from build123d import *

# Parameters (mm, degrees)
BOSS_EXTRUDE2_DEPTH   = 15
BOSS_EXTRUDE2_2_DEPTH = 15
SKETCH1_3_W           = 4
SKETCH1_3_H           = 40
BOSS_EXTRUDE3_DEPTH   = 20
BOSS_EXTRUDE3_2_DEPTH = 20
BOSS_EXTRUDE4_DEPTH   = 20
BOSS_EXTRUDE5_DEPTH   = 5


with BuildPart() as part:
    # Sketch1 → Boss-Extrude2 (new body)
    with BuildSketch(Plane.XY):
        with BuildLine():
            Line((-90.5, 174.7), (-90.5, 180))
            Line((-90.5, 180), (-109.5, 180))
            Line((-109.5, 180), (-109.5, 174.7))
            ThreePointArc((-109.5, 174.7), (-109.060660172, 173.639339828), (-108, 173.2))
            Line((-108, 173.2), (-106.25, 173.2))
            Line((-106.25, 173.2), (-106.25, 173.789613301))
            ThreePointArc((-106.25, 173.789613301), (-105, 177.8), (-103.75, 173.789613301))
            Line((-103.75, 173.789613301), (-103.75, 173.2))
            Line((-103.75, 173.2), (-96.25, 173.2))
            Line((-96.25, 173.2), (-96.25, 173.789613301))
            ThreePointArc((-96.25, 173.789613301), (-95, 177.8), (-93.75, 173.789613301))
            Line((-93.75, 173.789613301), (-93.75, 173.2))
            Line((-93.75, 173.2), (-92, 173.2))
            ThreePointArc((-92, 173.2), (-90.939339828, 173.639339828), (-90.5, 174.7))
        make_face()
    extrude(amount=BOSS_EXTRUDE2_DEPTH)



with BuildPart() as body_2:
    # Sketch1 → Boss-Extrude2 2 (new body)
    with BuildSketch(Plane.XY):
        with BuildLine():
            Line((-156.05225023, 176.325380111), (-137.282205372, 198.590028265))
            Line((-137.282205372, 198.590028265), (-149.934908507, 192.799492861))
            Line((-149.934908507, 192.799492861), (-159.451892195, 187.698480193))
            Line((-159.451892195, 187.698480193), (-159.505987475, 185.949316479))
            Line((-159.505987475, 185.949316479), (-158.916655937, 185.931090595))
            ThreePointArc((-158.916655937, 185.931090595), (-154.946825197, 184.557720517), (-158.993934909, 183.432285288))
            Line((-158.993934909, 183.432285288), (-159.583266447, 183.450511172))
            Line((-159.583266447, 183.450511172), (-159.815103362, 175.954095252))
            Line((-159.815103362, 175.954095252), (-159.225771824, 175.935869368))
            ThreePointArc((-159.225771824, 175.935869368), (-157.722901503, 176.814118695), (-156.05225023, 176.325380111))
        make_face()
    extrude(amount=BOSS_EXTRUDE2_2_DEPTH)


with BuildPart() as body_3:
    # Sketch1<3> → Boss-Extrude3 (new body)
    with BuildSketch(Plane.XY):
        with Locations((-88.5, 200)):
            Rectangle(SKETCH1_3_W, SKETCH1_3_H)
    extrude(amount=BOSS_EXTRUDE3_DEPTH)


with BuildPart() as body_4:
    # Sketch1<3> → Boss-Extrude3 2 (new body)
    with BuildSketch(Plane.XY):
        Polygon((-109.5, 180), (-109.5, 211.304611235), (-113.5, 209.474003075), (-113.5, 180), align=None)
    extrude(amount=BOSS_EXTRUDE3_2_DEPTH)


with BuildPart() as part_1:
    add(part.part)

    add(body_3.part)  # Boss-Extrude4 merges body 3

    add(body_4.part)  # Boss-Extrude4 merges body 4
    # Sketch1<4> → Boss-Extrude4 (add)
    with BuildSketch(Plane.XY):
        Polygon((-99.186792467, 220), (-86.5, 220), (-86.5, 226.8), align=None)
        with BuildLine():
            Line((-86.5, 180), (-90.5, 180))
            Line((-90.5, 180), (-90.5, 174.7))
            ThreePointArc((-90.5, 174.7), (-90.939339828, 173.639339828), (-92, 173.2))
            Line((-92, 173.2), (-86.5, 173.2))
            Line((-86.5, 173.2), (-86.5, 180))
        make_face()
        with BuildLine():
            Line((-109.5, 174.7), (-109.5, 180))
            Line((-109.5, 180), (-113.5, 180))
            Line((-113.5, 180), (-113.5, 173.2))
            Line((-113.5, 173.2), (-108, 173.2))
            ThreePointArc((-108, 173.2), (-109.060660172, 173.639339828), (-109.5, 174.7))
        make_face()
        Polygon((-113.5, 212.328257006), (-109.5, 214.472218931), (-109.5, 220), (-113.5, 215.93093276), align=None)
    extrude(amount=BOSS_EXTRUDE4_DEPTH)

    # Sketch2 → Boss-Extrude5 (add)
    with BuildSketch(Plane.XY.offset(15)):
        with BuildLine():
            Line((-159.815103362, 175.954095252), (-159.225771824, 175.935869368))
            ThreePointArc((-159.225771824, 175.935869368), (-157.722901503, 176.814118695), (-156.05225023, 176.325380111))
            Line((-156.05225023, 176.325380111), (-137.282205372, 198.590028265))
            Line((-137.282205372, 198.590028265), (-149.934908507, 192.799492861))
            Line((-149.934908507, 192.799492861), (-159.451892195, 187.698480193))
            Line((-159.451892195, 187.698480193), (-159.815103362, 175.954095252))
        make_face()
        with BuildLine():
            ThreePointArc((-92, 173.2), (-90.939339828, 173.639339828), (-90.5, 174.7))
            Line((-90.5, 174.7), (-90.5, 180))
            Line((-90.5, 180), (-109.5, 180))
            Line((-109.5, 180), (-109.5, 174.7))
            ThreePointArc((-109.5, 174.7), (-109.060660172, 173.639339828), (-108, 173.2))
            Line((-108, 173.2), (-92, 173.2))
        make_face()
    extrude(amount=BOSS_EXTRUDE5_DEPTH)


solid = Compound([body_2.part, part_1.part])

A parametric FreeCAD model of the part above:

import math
import FreeCAD as App
import Part
import Sketcher

V = App.Vector

doc = App.newDocument("Part")
body = doc.addObject("PartDesign::Body", "Body")

# Sketch on XY plane
sketch1 = doc.addObject("Sketcher::SketchObject", "Sketch")
body.addObject(sketch1)
sketch1.AttachmentSupport = (doc.XY_Plane, [""])
sketch1.MapMode = "FlatFace"
sketch1.addGeometry(Part.LineSegment(V(-90.5, 174.7, 0), V(-90.5, 180, 0)), False)
sketch1.addGeometry(Part.LineSegment(V(-90.5, 180, 0), V(-109.5, 180, 0)), False)
sketch1.addGeometry(Part.LineSegment(V(-109.5, 180, 0), V(-109.5, 174.7, 0)), False)
sketch1.addGeometry(Part.ArcOfCircle(Part.Circle(V(-108, 174.7, 0), V(0, 0, 1), 1.5), math.radians(180), math.radians(270)), False)
sketch1.addGeometry(Part.LineSegment(V(-108, 173.2, 0), V(-106.2, 173.2, 0)), False)
sketch1.addGeometry(Part.LineSegment(V(-106.2, 173.2, 0), V(-106.2, 173.8, 0)), False)
sketch1.addGeometry(Part.ArcOfCircle(Part.Circle(V(-105, 175.6, 0), V(0, 0, 1), 2.2), math.radians(-55), math.radians(235)), False)
sketch1.addGeometry(Part.LineSegment(V(-103.8, 173.8, 0), V(-103.8, 173.2, 0)), False)
sketch1.addGeometry(Part.LineSegment(V(-103.8, 173.2, 0), V(-96.2, 173.2, 0)), False)
sketch1.addGeometry(Part.LineSegment(V(-96.2, 173.2, 0), V(-96.2, 173.8, 0)), False)
sketch1.addGeometry(Part.ArcOfCircle(Part.Circle(V(-95, 175.6, 0), V(0, 0, 1), 2.2), math.radians(-55), math.radians(235)), False)
sketch1.addGeometry(Part.LineSegment(V(-93.8, 173.8, 0), V(-93.8, 173.2, 0)), False)
sketch1.addGeometry(Part.LineSegment(V(-93.8, 173.2, 0), V(-92, 173.2, 0)), False)
sketch1.addGeometry(Part.ArcOfCircle(Part.Circle(V(-92, 174.7, 0), V(0, 0, 1), 1.5), math.radians(-90), math.radians(0)), False)
sketch1.addConstraint(Sketcher.Constraint("Coincident", 0, 2, 1, 1))
sketch1.addConstraint(Sketcher.Constraint("Coincident", 1, 2, 2, 1))
sketch1.addConstraint(Sketcher.Constraint("Tangent", 2, 2, 3, 1))
sketch1.addConstraint(Sketcher.Constraint("Tangent", 3, 2, 4, 1))
sketch1.addConstraint(Sketcher.Constraint("Coincident", 4, 2, 5, 1))
sketch1.addConstraint(Sketcher.Constraint("Coincident", 5, 2, 6, 2))
sketch1.addConstraint(Sketcher.Constraint("Coincident", 6, 1, 7, 1))
sketch1.addConstraint(Sketcher.Constraint("Coincident", 7, 2, 8, 1))
sketch1.addConstraint(Sketcher.Constraint("Coincident", 8, 2, 9, 1))
sketch1.addConstraint(Sketcher.Constraint("Coincident", 9, 2, 10, 2))
sketch1.addConstraint(Sketcher.Constraint("Coincident", 10, 1, 11, 1))
sketch1.addConstraint(Sketcher.Constraint("Coincident", 11, 2, 12, 1))
sketch1.addConstraint(Sketcher.Constraint("Tangent", 12, 2, 13, 1))
sketch1.addConstraint(Sketcher.Constraint("Tangent", 13, 2, 0, 1))
sketch1.addConstraint(Sketcher.Constraint("Vertical", 0))
sketch1.addConstraint(Sketcher.Constraint("Horizontal", 1))
sketch1.addConstraint(Sketcher.Constraint("Vertical", 2))
sketch1.addConstraint(Sketcher.Constraint("Horizontal", 4))
sketch1.addConstraint(Sketcher.Constraint("Vertical", 5))
sketch1.addConstraint(Sketcher.Constraint("Vertical", 7))
sketch1.addConstraint(Sketcher.Constraint("Horizontal", 8))
sketch1.addConstraint(Sketcher.Constraint("Vertical", 9))
sketch1.addConstraint(Sketcher.Constraint("Vertical", 11))
sketch1.addConstraint(Sketcher.Constraint("Horizontal", 12))
sketch1.addConstraint(Sketcher.Constraint("Equal", 6, 10))
sketch1.addConstraint(Sketcher.Constraint("Equal", 3, 13))
sketch1.addConstraint(Sketcher.Constraint("Horizontal", 6, 3, 10, 3))
sketch1.addConstraint(Sketcher.Constraint("Horizontal", 3, 3, 13, 3))
sketch1.addConstraint(Sketcher.Constraint("Horizontal", 5, 2, 6, 1))
sketch1.addConstraint(Sketcher.Constraint("Horizontal", 4, 2, 7, 2))
sketch1.addConstraint(Sketcher.Constraint("Horizontal", 6, 1, 9, 2))
sketch1.addConstraint(Sketcher.Constraint("Horizontal", 9, 2, 10, 1))
sketch1.addConstraint(Sketcher.Constraint("Equal", 4, 12))
sketch1.addConstraint(Sketcher.Constraint("Radius", 3, 1.5))
sketch1.addConstraint(Sketcher.Constraint("Radius", 6, 2.2))
sketch1.addConstraint(Sketcher.Constraint("DistanceX", 1, 2, 1, 1, 19.0))
sketch1.addConstraint(Sketcher.Constraint("DistanceX", 8, 1, 8, 2, 7.5))
sketch1.addConstraint(Sketcher.Constraint("DistanceY", 0, 1, 0, 2, 5.3))
sketch1.addConstraint(Sketcher.Constraint("DistanceX", 3, 3, -1, 1, 108.0))
sketch1.addConstraint(Sketcher.Constraint("DistanceX", 6, 3, -1, 1, 105.0))
sketch1.addConstraint(Sketcher.Constraint("DistanceY", -1, 1, 0, 2, 180.0))
sketch1.addConstraint(Sketcher.Constraint("DistanceY", -1, 1, 6, 3, 175.6))
pad1 = doc.addObject("PartDesign::Pad", "Pad")
body.addObject(pad1)
pad1.Profile = sketch1
pad1.Length = 15
body2 = doc.addObject("PartDesign::Body", "Body001")

# Sketch on XY plane
sketch2 = doc.addObject("Sketcher::SketchObject", "Sketch001")
body2.addObject(sketch2)
sketch2.AttachmentSupport = (doc.getObject("XY_Plane001"), [""])
sketch2.MapMode = "FlatFace"
sketch2.addGeometry(Part.LineSegment(V(-156.05225, 176.32538, 0), V(-137.282205, 198.590028, 0)), False)
sketch2.addGeometry(Part.LineSegment(V(-137.282205, 198.590028, 0), V(-149.934909, 192.799493, 0)), False)
sketch2.addGeometry(Part.LineSegment(V(-149.934909, 192.799493, 0), V(-159.451892, 187.69848, 0)), False)
sketch2.addGeometry(Part.LineSegment(V(-159.451892, 187.69848, 0), V(-159.505987, 185.949316, 0)), False)
sketch2.addGeometry(Part.LineSegment(V(-159.505987, 185.949316, 0), V(-158.916656, 185.931091, 0)), False)
sketch2.addGeometry(Part.ArcOfCircle(Part.Circle(V(-157.145774, 184.625726, 0), V(0, 0, 1), 2.2), math.radians(-147.14785), math.radians(143.605079)), False)
sketch2.addGeometry(Part.LineSegment(V(-158.993935, 183.432285, 0), V(-159.583266, 183.450511, 0)), False)
sketch2.addGeometry(Part.LineSegment(V(-159.583266, 183.450511, 0), V(-159.815103, 175.954095, 0)), False)
sketch2.addGeometry(Part.LineSegment(V(-159.815103, 175.954095, 0), V(-159.225772, 175.935869, 0)), False)
sketch2.addGeometry(Part.ArcOfCircle(Part.Circle(V(-157.45489, 174.630505, 0), V(0, 0, 1), 2.2), math.radians(50.389631), math.radians(143.605079)), False)
sketch2.addConstraint(Sketcher.Constraint("Coincident", 0, 2, 1, 1))
sketch2.addConstraint(Sketcher.Constraint("Coincident", 1, 2, 2, 1))
sketch2.addConstraint(Sketcher.Constraint("Coincident", 2, 2, 3, 1))
sketch2.addConstraint(Sketcher.Constraint("Coincident", 3, 2, 4, 1))
sketch2.addConstraint(Sketcher.Constraint("Coincident", 4, 2, 5, 2))
sketch2.addConstraint(Sketcher.Constraint("Coincident", 5, 1, 6, 1))
sketch2.addConstraint(Sketcher.Constraint("Coincident", 6, 2, 7, 1))
sketch2.addConstraint(Sketcher.Constraint("Coincident", 7, 2, 8, 1))
sketch2.addConstraint(Sketcher.Constraint("Coincident", 8, 2, 9, 2))
sketch2.addConstraint(Sketcher.Constraint("Coincident", 9, 1, 0, 1))
sketch2.addConstraint(Sketcher.Constraint("Radius", 5, 2.2))
sketch2.addConstraint(Sketcher.Constraint("Radius", 9, 2.2))
sketch2.addConstraint(Sketcher.Constraint("Distance", 7, 7.5))
sketch2.addConstraint(Sketcher.Constraint("Distance", 3, 1.75))
sketch2.addConstraint(Sketcher.Constraint("Distance", 0, 29.12094))
sketch2.addConstraint(Sketcher.Constraint("Distance", 2, 10.797838))
sketch2.addConstraint(Sketcher.Constraint("DistanceX", 9, 3, -1, 1, 157.45489))
sketch2.addConstraint(Sketcher.Constraint("DistanceY", -1, 1, 0, 2, 198.590028))
sketch2.addConstraint(Sketcher.Constraint("DistanceX", 1, 2, -1, 1, 149.934909))
sketch2.addConstraint(Sketcher.Constraint("DistanceY", -1, 1, 2, 2, 187.69848))
sketch2.addConstraint(Sketcher.Constraint("DistanceY", -1, 1, 4, 2, 185.931091))
sketch2.addConstraint(Sketcher.Constraint("DistanceY", -1, 1, 6, 2, 183.450511))
sketch2.addConstraint(Sketcher.Constraint("DistanceX", 8, 2, -1, 1, 159.225772))
sketch2.addConstraint(Sketcher.Constraint("DistanceY", -1, 1, 8, 2, 175.935869))
sketch2.addConstraint(Sketcher.Constraint("DistanceX", 9, 1, -1, 1, 156.05225))
sketch2.addConstraint(Sketcher.Constraint("DistanceY", 9, 3, 5, 3, 9.995221))
sketch2.addConstraint(Sketcher.Constraint("DistanceX", 5, 3, 0, 2, 19.863568))
sketch2.addConstraint(Sketcher.Constraint("DistanceY", 9, 3, 1, 2, 18.168988))
sketch2.addConstraint(Sketcher.Constraint("DistanceY", 5, 3, 3, 2, 1.32359))
sketch2.addConstraint(Sketcher.Constraint("DistanceX", 5, 1, 5, 3, 1.848161))
sketch2.addConstraint(Sketcher.Constraint("DistanceX", 6, 2, 5, 1, 0.589332))
sketch2.addConstraint(Sketcher.Constraint("DistanceY", 9, 3, 7, 2, 1.32359))
pad2 = doc.addObject("PartDesign::Pad", "Pad001")
body2.addObject(pad2)
pad2.Profile = sketch2
pad2.Length = 15
body3 = doc.addObject("PartDesign::Body", "Body002")

# Sketch on XY plane
sketch3 = doc.addObject("Sketcher::SketchObject", "Sketch002")
body3.addObject(sketch3)
sketch3.AttachmentSupport = (doc.getObject("XY_Plane002"), [""])
sketch3.MapMode = "FlatFace"
sketch3.addGeometry(Part.LineSegment(V(-90.5, 220, 0), V(-90.5, 180, 0)), False)
sketch3.addGeometry(Part.LineSegment(V(-90.5, 180, 0), V(-86.5, 180, 0)), False)
sketch3.addGeometry(Part.LineSegment(V(-86.5, 180, 0), V(-86.5, 220, 0)), False)
sketch3.addGeometry(Part.LineSegment(V(-86.5, 220, 0), V(-90.5, 220, 0)), False)
sketch3.addConstraint(Sketcher.Constraint("Coincident", 0, 2, 1, 1))
sketch3.addConstraint(Sketcher.Constraint("Coincident", 1, 2, 2, 1))
sketch3.addConstraint(Sketcher.Constraint("Coincident", 2, 2, 3, 1))
sketch3.addConstraint(Sketcher.Constraint("Coincident", 3, 2, 0, 1))
sketch3.addConstraint(Sketcher.Constraint("Vertical", 0))
sketch3.addConstraint(Sketcher.Constraint("Horizontal", 1))
sketch3.addConstraint(Sketcher.Constraint("Vertical", 2))
sketch3.addConstraint(Sketcher.Constraint("Horizontal", 3))
sketch3.addConstraint(Sketcher.Constraint("DistanceX", 1, 1, 1, 2, 4.0))
sketch3.addConstraint(Sketcher.Constraint("DistanceY", 0, 2, 0, 1, 40.0))
sketch3.addConstraint(Sketcher.Constraint("DistanceY", -1, 1, 0, 2, 180.0))
sketch3.addConstraint(Sketcher.Constraint("DistanceX", 0, 2, -1, 1, 90.5))
pad3 = doc.addObject("PartDesign::Pad", "Pad002")
body3.addObject(pad3)
pad3.Profile = sketch3
pad3.Length = 20
body4 = doc.addObject("PartDesign::Body", "Body003")

# Sketch on XY plane
sketch4 = doc.addObject("Sketcher::SketchObject", "Sketch003")
body4.addObject(sketch4)
sketch4.AttachmentSupport = (doc.getObject("XY_Plane003"), [""])
sketch4.MapMode = "FlatFace"
sketch4.addGeometry(Part.LineSegment(V(-109.5, 180, 0), V(-109.5, 211.3, 0)), False)
sketch4.addGeometry(Part.LineSegment(V(-109.5, 211.3, 0), V(-113.5, 209.5, 0)), False)
sketch4.addGeometry(Part.LineSegment(V(-113.5, 209.5, 0), V(-113.5, 180, 0)), False)
sketch4.addGeometry(Part.LineSegment(V(-113.5, 180, 0), V(-109.5, 180, 0)), False)
sketch4.addConstraint(Sketcher.Constraint("Coincident", 0, 2, 1, 1))
sketch4.addConstraint(Sketcher.Constraint("Coincident", 1, 2, 2, 1))
sketch4.addConstraint(Sketcher.Constraint("Coincident", 2, 2, 3, 1))
sketch4.addConstraint(Sketcher.Constraint("Coincident", 3, 2, 0, 1))
sketch4.addConstraint(Sketcher.Constraint("Vertical", 0))
sketch4.addConstraint(Sketcher.Constraint("Vertical", 2))
sketch4.addConstraint(Sketcher.Constraint("Horizontal", 3))
sketch4.addConstraint(Sketcher.Constraint("DistanceX", 3, 1, 3, 2, 4.0))
sketch4.addConstraint(Sketcher.Constraint("DistanceY", -1, 1, 2, 2, 180.0))
sketch4.addConstraint(Sketcher.Constraint("DistanceX", 0, 2, -1, 1, 109.5))
sketch4.addConstraint(Sketcher.Constraint("DistanceY", 0, 1, 0, 2, 31.304611))
sketch4.addConstraint(Sketcher.Constraint("Distance", 1, 4.398992))
pad4 = doc.addObject("PartDesign::Pad", "Pad003")
body4.addObject(pad4)
pad4.Profile = sketch4
pad4.Length = 20
body.AllowCompound = True
doc.recompute()

boolean = doc.addObject("PartDesign::Boolean", "Boolean")
body.addObject(boolean)
boolean.Type = "Fuse"
boolean.addObjects([body3])
doc.recompute()

boolean2 = doc.addObject("PartDesign::Boolean", "Boolean001")
body.addObject(boolean2)
boolean2.Type = "Fuse"
boolean2.addObjects([body4])

# Sketch on XY plane
sketch5 = doc.addObject("Sketcher::SketchObject", "Sketch004")
body.addObject(sketch5)
sketch5.AttachmentSupport = (doc.XY_Plane, [""])
sketch5.MapMode = "FlatFace"
sketch5.addGeometry(Part.LineSegment(V(-99.2, 220, 0), V(-86.5, 220, 0)), False)
sketch5.addGeometry(Part.LineSegment(V(-86.5, 220, 0), V(-86.5, 226.8, 0)), False)
sketch5.addGeometry(Part.LineSegment(V(-86.5, 226.8, 0), V(-99.2, 220, 0)), False)
sketch5.addGeometry(Part.LineSegment(V(-86.5, 180, 0), V(-90.5, 180, 0)), False)
sketch5.addGeometry(Part.LineSegment(V(-90.5, 180, 0), V(-90.5, 174.7, 0)), False)
sketch5.addGeometry(Part.ArcOfCircle(Part.Circle(V(-92, 174.7, 0), V(0, 0, 1), 1.5), math.radians(-90), math.radians(0)), False)
sketch5.addGeometry(Part.LineSegment(V(-92, 173.2, 0), V(-86.5, 173.2, 0)), False)
sketch5.addGeometry(Part.LineSegment(V(-86.5, 173.2, 0), V(-86.5, 180, 0)), False)
sketch5.addGeometry(Part.LineSegment(V(-109.5, 174.7, 0), V(-109.5, 180, 0)), False)
sketch5.addGeometry(Part.LineSegment(V(-109.5, 180, 0), V(-113.5, 180, 0)), False)
sketch5.addGeometry(Part.LineSegment(V(-113.5, 180, 0), V(-113.5, 173.2, 0)), False)
sketch5.addGeometry(Part.LineSegment(V(-113.5, 173.2, 0), V(-108, 173.2, 0)), False)
sketch5.addGeometry(Part.ArcOfCircle(Part.Circle(V(-108, 174.7, 0), V(0, 0, 1), 1.5), math.radians(180), math.radians(270)), False)
sketch5.addGeometry(Part.LineSegment(V(-113.5, 212.3, 0), V(-109.5, 214.5, 0)), False)
sketch5.addGeometry(Part.LineSegment(V(-109.5, 214.5, 0), V(-109.5, 220, 0)), False)
sketch5.addGeometry(Part.LineSegment(V(-109.5, 220, 0), V(-113.5, 215.9, 0)), False)
sketch5.addGeometry(Part.LineSegment(V(-113.5, 215.9, 0), V(-113.5, 212.3, 0)), False)
sketch5.addConstraint(Sketcher.Constraint("Coincident", 0, 2, 1, 1))
sketch5.addConstraint(Sketcher.Constraint("Coincident", 1, 2, 2, 1))
sketch5.addConstraint(Sketcher.Constraint("Coincident", 2, 2, 0, 1))
sketch5.addConstraint(Sketcher.Constraint("Coincident", 3, 2, 4, 1))
sketch5.addConstraint(Sketcher.Constraint("Tangent", 4, 2, 5, 2))
sketch5.addConstraint(Sketcher.Constraint("Tangent", 5, 1, 6, 1))
sketch5.addConstraint(Sketcher.Constraint("Coincident", 6, 2, 7, 1))
sketch5.addConstraint(Sketcher.Constraint("Coincident", 7, 2, 3, 1))
sketch5.addConstraint(Sketcher.Constraint("Coincident", 8, 2, 9, 1))
sketch5.addConstraint(Sketcher.Constraint("Coincident", 9, 2, 10, 1))
sketch5.addConstraint(Sketcher.Constraint("Coincident", 10, 2, 11, 1))
sketch5.addConstraint(Sketcher.Constraint("Tangent", 11, 2, 12, 2))
sketch5.addConstraint(Sketcher.Constraint("Tangent", 12, 1, 8, 1))
sketch5.addConstraint(Sketcher.Constraint("Coincident", 13, 2, 14, 1))
sketch5.addConstraint(Sketcher.Constraint("Coincident", 14, 2, 15, 1))
sketch5.addConstraint(Sketcher.Constraint("Coincident", 15, 2, 16, 1))
sketch5.addConstraint(Sketcher.Constraint("Coincident", 16, 2, 13, 1))
sketch5.addConstraint(Sketcher.Constraint("Horizontal", 0))
sketch5.addConstraint(Sketcher.Constraint("Vertical", 1))
sketch5.addConstraint(Sketcher.Constraint("Horizontal", 3))
sketch5.addConstraint(Sketcher.Constraint("Vertical", 4))
sketch5.addConstraint(Sketcher.Constraint("Horizontal", 6))
sketch5.addConstraint(Sketcher.Constraint("Vertical", 7))
sketch5.addConstraint(Sketcher.Constraint("Vertical", 8))
sketch5.addConstraint(Sketcher.Constraint("Horizontal", 9))
sketch5.addConstraint(Sketcher.Constraint("Vertical", 10))
sketch5.addConstraint(Sketcher.Constraint("Horizontal", 11))
sketch5.addConstraint(Sketcher.Constraint("Vertical", 14))
sketch5.addConstraint(Sketcher.Constraint("Vertical", 16))
sketch5.addConstraint(Sketcher.Constraint("Equal", 5, 12))
sketch5.addConstraint(Sketcher.Constraint("Parallel", 2, 13))
sketch5.addConstraint(Sketcher.Constraint("Horizontal", 5, 3, 12, 3))
sketch5.addConstraint(Sketcher.Constraint("Horizontal", 7, 2, 8, 2))
sketch5.addConstraint(Sketcher.Constraint("Horizontal", 2, 2, 14, 2))
sketch5.addConstraint(Sketcher.Constraint("Vertical", 1, 2, 6, 2))
sketch5.addConstraint(Sketcher.Constraint("Vertical", 12, 1, 13, 2))
sketch5.addConstraint(Sketcher.Constraint("Vertical", 10, 2, 15, 2))
sketch5.addConstraint(Sketcher.Constraint("Equal", 3, 9))
sketch5.addConstraint(Sketcher.Constraint("Equal", 1, 7))
sketch5.addConstraint(Sketcher.Constraint("Radius", 5, 1.5))
sketch5.addConstraint(Sketcher.Constraint("DistanceX", 3, 2, 3, 1, 4.0))
sketch5.addConstraint(Sketcher.Constraint("DistanceY", 1, 1, 1, 2, 6.8))
sketch5.addConstraint(Sketcher.Constraint("DistanceX", 5, 3, -1, 1, 92.0))
sketch5.addConstraint(Sketcher.Constraint("DistanceX", 12, 3, -1, 1, 108.0))
sketch5.addConstraint(Sketcher.Constraint("DistanceY", -1, 1, 0, 2, 220.0))
sketch5.addConstraint(Sketcher.Constraint("DistanceY", -1, 1, 3, 2, 180.0))
sketch5.addConstraint(Sketcher.Constraint("Distance", 15, 5.705901))
sketch5.addConstraint(Sketcher.Constraint("DistanceY", 14, 1, 14, 2, 5.527781))
sketch5.addConstraint(Sketcher.Constraint("Distance", 2, 14.394259))
pad5 = doc.addObject("PartDesign::Pad", "Pad004")
body.addObject(pad5)
pad5.Profile = sketch5
pad5.Length = 20

# Sketch on XY plane
sketch6 = doc.addObject("Sketcher::SketchObject", "Sketch005")
body.addObject(sketch6)
sketch6.AttachmentSupport = (doc.XY_Plane, [""])
sketch6.MapMode = "FlatFace"
sketch6.AttachmentOffset = App.Placement(V(0, 0, 15), App.Rotation())
sketch6.addGeometry(Part.LineSegment(V(-159.8, 176, 0), V(-159.2, 175.9, 0)), False)
sketch6.addGeometry(Part.ArcOfCircle(Part.Circle(V(-157.5, 174.6, 0), V(0, 0, 1), 2.2), math.radians(50), math.radians(144)), False)
sketch6.addGeometry(Part.LineSegment(V(-156.1, 176.3, 0), V(-137.3, 198.6, 0)), False)
sketch6.addGeometry(Part.LineSegment(V(-137.3, 198.6, 0), V(-149.9, 192.8, 0)), False)
sketch6.addGeometry(Part.LineSegment(V(-149.9, 192.8, 0), V(-159.5, 187.7, 0)), False)
sketch6.addGeometry(Part.LineSegment(V(-159.5, 187.7, 0), V(-159.8, 176, 0)), False)
sketch6.addGeometry(Part.ArcOfCircle(Part.Circle(V(-92, 174.7, 0), V(0, 0, 1), 1.5), math.radians(-90), math.radians(0)), False)
sketch6.addGeometry(Part.LineSegment(V(-90.5, 174.7, 0), V(-90.5, 180, 0)), False)
sketch6.addGeometry(Part.LineSegment(V(-90.5, 180, 0), V(-109.5, 180, 0)), False)
sketch6.addGeometry(Part.LineSegment(V(-109.5, 180, 0), V(-109.5, 174.7, 0)), False)
sketch6.addGeometry(Part.ArcOfCircle(Part.Circle(V(-108, 174.7, 0), V(0, 0, 1), 1.5), math.radians(180), math.radians(270)), False)
sketch6.addGeometry(Part.LineSegment(V(-108, 173.2, 0), V(-92, 173.2, 0)), False)
sketch6.addConstraint(Sketcher.Constraint("Coincident", 0, 2, 1, 2))
sketch6.addConstraint(Sketcher.Constraint("Coincident", 1, 1, 2, 1))
sketch6.addConstraint(Sketcher.Constraint("Coincident", 2, 2, 3, 1))
sketch6.addConstraint(Sketcher.Constraint("Coincident", 3, 2, 4, 1))
sketch6.addConstraint(Sketcher.Constraint("Coincident", 4, 2, 5, 1))
sketch6.addConstraint(Sketcher.Constraint("Coincident", 5, 2, 0, 1))
sketch6.addConstraint(Sketcher.Constraint("Tangent", 6, 2, 7, 1))
sketch6.addConstraint(Sketcher.Constraint("Coincident", 7, 2, 8, 1))
sketch6.addConstraint(Sketcher.Constraint("Coincident", 8, 2, 9, 1))
sketch6.addConstraint(Sketcher.Constraint("Tangent", 9, 2, 10, 1))
sketch6.addConstraint(Sketcher.Constraint("Tangent", 10, 2, 11, 1))
sketch6.addConstraint(Sketcher.Constraint("Tangent", 11, 2, 6, 1))
sketch6.addConstraint(Sketcher.Constraint("Vertical", 7))
sketch6.addConstraint(Sketcher.Constraint("Horizontal", 8))
sketch6.addConstraint(Sketcher.Constraint("Vertical", 9))
sketch6.addConstraint(Sketcher.Constraint("Horizontal", 11))
sketch6.addConstraint(Sketcher.Constraint("Equal", 6, 10))
sketch6.addConstraint(Sketcher.Constraint("Perpendicular", 0, 5))
sketch6.addConstraint(Sketcher.Constraint("Radius", 1, 2.2))
sketch6.addConstraint(Sketcher.Constraint("Radius", 6, 1.5))
sketch6.addConstraint(Sketcher.Constraint("DistanceX", 8, 2, 8, 1, 19.0))
sketch6.addConstraint(Sketcher.Constraint("DistanceY", 7, 1, 7, 2, 5.3))
sketch6.addConstraint(Sketcher.Constraint("DistanceX", 6, 3, -1, 1, 92.0))
sketch6.addConstraint(Sketcher.Constraint("DistanceY", -1, 1, 7, 2, 180.0))
sketch6.addConstraint(Sketcher.Constraint("Distance", 5, 11.75))
sketch6.addConstraint(Sketcher.Constraint("DistanceY", 1, 1, 4, 2, 11.3731))
sketch6.addConstraint(Sketcher.Constraint("Distance", 2, 29.12094))
sketch6.addConstraint(Sketcher.Constraint("Distance", 4, 10.797838))
sketch6.addConstraint(Sketcher.Constraint("DistanceX", 1, 3, -1, 1, 157.45489))
sketch6.addConstraint(Sketcher.Constraint("DistanceX", 0, 2, -1, 1, 159.225772))
sketch6.addConstraint(Sketcher.Constraint("DistanceY", -1, 1, 0, 2, 175.935869))
sketch6.addConstraint(Sketcher.Constraint("DistanceX", 1, 1, -1, 1, 156.05225))
sketch6.addConstraint(Sketcher.Constraint("DistanceY", -1, 1, 2, 2, 198.590028))
sketch6.addConstraint(Sketcher.Constraint("DistanceX", 3, 2, -1, 1, 149.934909))
sketch6.addConstraint(Sketcher.Constraint("DistanceY", 1, 3, 3, 2, 18.168988))
pad6 = doc.addObject("PartDesign::Pad", "Pad005")
body.addObject(pad6)
pad6.Profile = sketch6
pad6.Length = 5

doc.recompute()
